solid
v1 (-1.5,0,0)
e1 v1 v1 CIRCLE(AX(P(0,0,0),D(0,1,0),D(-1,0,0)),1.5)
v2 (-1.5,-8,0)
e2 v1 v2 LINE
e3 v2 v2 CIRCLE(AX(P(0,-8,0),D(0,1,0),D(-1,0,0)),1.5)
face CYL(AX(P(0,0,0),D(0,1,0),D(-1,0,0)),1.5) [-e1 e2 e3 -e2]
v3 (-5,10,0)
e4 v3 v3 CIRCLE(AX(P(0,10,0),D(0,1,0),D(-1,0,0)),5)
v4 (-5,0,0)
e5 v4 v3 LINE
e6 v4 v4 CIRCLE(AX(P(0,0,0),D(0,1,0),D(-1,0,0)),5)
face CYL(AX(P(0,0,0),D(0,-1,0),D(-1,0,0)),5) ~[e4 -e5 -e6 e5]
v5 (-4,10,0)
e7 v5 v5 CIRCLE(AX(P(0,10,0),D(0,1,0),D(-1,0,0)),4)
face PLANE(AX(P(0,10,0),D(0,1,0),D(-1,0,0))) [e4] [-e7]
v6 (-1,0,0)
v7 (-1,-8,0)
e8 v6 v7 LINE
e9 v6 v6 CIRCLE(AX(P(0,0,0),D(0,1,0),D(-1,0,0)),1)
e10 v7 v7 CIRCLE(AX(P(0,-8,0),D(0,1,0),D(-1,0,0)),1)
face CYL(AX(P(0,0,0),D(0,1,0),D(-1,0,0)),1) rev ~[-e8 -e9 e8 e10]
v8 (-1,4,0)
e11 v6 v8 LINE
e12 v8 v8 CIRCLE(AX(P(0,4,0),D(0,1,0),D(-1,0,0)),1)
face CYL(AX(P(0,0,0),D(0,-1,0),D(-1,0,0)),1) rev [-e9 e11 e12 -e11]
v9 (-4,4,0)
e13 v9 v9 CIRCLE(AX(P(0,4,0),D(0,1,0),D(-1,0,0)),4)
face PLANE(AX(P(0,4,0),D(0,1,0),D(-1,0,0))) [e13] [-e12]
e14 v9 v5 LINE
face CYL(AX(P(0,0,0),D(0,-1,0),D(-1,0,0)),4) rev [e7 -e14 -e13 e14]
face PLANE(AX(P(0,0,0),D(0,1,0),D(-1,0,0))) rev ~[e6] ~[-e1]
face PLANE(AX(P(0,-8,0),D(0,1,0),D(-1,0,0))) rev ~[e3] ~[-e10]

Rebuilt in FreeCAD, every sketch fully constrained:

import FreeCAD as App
import Part
import Sketcher
Q = App.Units.Quantity

doc = App.newDocument("Part")
body = doc.addObject("PartDesign::Body", "Body")

# Sketch on XZ plane
sketch1 = doc.addObject("Sketcher::SketchObject", "Sketch")
body.addObject(sketch1)
sketch1.AttachmentSupport = (doc.XZ_Plane, [""])
sketch1.MapMode = "FlatFace"
sketch1.addGeometry([
    Part.Circle(App.Vector(0, 0, 0), App.Vector(0, 0, 1), 5),
    Part.Circle(App.Vector(0, 0, 0), App.Vector(0, 0, 1), 4),
], False)
sketch1.addConstraint([
    Sketcher.Constraint("Coincident", 0, 3, -1, 1),
    Sketcher.Constraint("Coincident", 1, 3, -1, 1),
    Sketcher.Constraint("Diameter", 0, Q("10 mm")),
    Sketcher.Constraint("Diameter", 1, Q("8 mm")),
])
pad1 = doc.addObject("PartDesign::Pad", "Pad")
body.addObject(pad1)
pad1.Profile = sketch1
pad1.Length = 10
pad1.Reversed = True

# Sketch on XZ plane
sketch2 = doc.addObject("Sketcher::SketchObject", "Sketch001")
body.addObject(sketch2)
sketch2.AttachmentSupport = (doc.XZ_Plane, [""])
sketch2.MapMode = "FlatFace"
sketch2.addGeometry([
    Part.Circle(App.Vector(0, 0, 0), App.Vector(0, 0, 1), 4),
    Part.Circle(App.Vector(0, 0, 0), App.Vector(0, 0, 1), 1),
], False)
sketch2.addConstraint([
    Sketcher.Constraint("Coincident", 0, 3, -1, 1),
    Sketcher.Constraint("Coincident", 1, 3, -1, 1),
    Sketcher.Constraint("Diameter", 0, Q("8 mm")),
    Sketcher.Constraint("Diameter", 1, Q("2 mm")),
])
pad2 = doc.addObject("PartDesign::Pad", "Pad001")
body.addObject(pad2)
pad2.Profile = sketch2
pad2.Length = 4
pad2.Reversed = True

# Sketch on XZ plane
sketch3 = doc.addObject("Sketcher::SketchObject", "Sketch002")
body.addObject(sketch3)
sketch3.AttachmentSupport = (doc.XZ_Plane, [""])
sketch3.MapMode = "FlatFace"
sketch3.addGeometry([
    Part.Circle(App.Vector(0, 0, 0), App.Vector(0, 0, 1), 1.5),
    Part.Circle(App.Vector(0, 0, 0), App.Vector(0, 0, 1), 1),
], False)
sketch3.addConstraint([
    Sketcher.Constraint("Coincident", 0, 3, -1, 1),
    Sketcher.Constraint("Coincident", 1, 3, -1, 1),
    Sketcher.Constraint("Diameter", 0, Q("3 mm")),
    Sketcher.Constraint("Diameter", 1, Q("2 mm")),
])
pad3 = doc.addObject("PartDesign::Pad", "Pad002")
body.addObject(pad3)
pad3.Profile = sketch3
pad3.Length = 8

doc.recompute()
